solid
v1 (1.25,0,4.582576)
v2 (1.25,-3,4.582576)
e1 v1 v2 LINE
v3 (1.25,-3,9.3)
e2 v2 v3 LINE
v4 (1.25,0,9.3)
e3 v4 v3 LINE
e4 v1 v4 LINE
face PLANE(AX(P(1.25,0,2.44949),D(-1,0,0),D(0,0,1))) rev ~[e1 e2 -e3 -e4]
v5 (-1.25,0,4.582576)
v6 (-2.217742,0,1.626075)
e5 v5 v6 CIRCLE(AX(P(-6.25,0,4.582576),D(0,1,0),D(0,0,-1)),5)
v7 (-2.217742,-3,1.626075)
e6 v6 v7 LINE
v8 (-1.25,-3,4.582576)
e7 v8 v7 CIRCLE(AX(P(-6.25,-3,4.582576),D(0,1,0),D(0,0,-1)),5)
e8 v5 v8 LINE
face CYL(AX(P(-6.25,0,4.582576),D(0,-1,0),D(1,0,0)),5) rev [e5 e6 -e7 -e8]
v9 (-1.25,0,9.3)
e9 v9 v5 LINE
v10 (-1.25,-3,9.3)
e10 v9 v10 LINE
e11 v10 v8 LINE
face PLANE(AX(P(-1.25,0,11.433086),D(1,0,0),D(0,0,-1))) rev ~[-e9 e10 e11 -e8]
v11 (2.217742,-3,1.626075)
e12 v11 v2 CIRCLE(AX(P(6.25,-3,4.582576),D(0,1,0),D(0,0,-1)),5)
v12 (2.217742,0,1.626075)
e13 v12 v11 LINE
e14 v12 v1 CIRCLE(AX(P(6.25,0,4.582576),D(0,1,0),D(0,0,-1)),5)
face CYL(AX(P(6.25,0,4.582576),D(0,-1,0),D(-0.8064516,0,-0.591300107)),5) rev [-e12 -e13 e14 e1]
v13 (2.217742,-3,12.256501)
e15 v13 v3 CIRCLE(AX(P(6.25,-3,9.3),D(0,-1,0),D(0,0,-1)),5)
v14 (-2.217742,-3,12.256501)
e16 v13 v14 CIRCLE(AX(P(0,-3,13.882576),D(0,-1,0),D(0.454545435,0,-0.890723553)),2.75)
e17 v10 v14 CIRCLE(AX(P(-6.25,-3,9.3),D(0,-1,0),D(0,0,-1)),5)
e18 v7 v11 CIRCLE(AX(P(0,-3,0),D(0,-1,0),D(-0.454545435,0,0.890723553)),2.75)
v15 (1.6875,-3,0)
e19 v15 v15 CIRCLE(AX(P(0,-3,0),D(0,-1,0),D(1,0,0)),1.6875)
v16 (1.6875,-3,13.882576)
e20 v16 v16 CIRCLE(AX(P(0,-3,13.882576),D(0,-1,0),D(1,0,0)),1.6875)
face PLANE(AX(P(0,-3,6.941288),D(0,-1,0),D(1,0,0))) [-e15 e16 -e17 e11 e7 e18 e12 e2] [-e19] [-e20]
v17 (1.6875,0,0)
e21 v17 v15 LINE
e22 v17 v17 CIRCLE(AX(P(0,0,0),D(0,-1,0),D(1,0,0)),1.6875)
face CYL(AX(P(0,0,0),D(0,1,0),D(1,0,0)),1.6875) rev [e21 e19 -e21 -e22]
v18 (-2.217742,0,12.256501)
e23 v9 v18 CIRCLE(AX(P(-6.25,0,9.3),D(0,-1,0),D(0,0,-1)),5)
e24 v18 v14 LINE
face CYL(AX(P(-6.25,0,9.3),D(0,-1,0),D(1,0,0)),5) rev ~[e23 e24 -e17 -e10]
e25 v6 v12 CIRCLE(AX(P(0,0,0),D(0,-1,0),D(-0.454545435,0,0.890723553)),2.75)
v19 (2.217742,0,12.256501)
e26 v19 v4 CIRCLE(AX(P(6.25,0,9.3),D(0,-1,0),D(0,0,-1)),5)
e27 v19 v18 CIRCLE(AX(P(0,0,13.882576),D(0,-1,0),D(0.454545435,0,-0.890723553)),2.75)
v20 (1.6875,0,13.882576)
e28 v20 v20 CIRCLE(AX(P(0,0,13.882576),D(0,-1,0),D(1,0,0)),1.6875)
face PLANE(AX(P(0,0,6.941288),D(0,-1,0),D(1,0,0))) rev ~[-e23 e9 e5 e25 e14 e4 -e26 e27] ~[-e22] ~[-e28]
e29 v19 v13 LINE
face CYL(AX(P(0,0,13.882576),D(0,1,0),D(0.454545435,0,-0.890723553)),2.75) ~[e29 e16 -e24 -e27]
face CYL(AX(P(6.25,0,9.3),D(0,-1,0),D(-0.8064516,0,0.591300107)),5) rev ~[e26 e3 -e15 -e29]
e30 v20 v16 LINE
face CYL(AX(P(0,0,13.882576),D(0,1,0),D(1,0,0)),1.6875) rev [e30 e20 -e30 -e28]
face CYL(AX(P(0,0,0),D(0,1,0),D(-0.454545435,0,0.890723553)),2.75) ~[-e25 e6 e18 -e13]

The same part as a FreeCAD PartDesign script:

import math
import FreeCAD as App
import Part
import Sketcher

V = App.Vector


def edges_at(feature, points):
    """Names of the edges that pass closest to the given points."""
    edges = feature.Shape.Edges
    near = lambda p: min(range(len(edges)), key=lambda i: edges[i].distToShape(Part.Vertex(*p))[0])
    return sorted({f"Edge{near(p) + 1}" for p in points})

doc = App.newDocument("Part")
params = doc.addObject("Spreadsheet::Sheet", "Params")
for row, (alias, value) in enumerate([
    ("sketch1_radius", "2.75 mm"),
    ("pad1_length", "3 mm"),
    ("fillet_radius", "5 mm"),
], start=1):
    params.set(f"A{row}", alias)
    params.set(f"B{row}", "=" + value)
    params.setAlias(f"B{row}", alias)

body = doc.addObject("PartDesign::Body", "Body")

# Sketch on XZ plane
sketch1 = body.newObject("Sketcher::SketchObject", "Sketch")
sketch1.AttachmentSupport = (doc.getObject("XZ_Plane"), [""])
sketch1.MapMode = "FlatFace"
sketch1.addGeometry(Part.LineSegment(V(-1.2, 11.4, 0), V(-1.2, 2.4, 0)), False)
sketch1.addGeometry(Part.ArcOfCircle(Part.Circle(V(0, 0, 0), V(0, 0, 1), 2.8), math.radians(117), math.radians(423)), False)
sketch1.addGeometry(Part.LineSegment(V(1.2, 2.4, 0), V(1.2, 11.4, 0)), False)
sketch1.addGeometry(Part.ArcOfCircle(Part.Circle(V(0, 13.9, 0), V(0, 0, 1), 2.8), math.radians(-63), math.radians(243)), False)
sketch1.addGeometry(Part.Circle(V(0, 0, 0), V(0, 0, 1), 1.7), False)
sketch1.addGeometry(Part.Circle(V(0, 13.9, 0), V(0, 0, 1), 1.7), False)
sketch1.addConstraint(Sketcher.Constraint("Coincident", 0, 2, 1, 1))
sketch1.addConstraint(Sketcher.Constraint("Coincident", 1, 2, 2, 1))
sketch1.addConstraint(Sketcher.Constraint("Coincident", 2, 2, 3, 1))
sketch1.addConstraint(Sketcher.Constraint("Coincident", 3, 2, 0, 1))
sketch1.addConstraint(Sketcher.Constraint("Vertical", 0))
sketch1.addConstraint(Sketcher.Constraint("Vertical", 2))
sketch1.addConstraint(Sketcher.Constraint("Coincident", 1, 3, -1, 1))
sketch1.addConstraint(Sketcher.Constraint("Coincident", 4, 3, -1, 1))
sketch1.addConstraint(Sketcher.Constraint("Coincident", 5, 3, 3, 3))
sketch1.addConstraint(Sketcher.Constraint("Equal", 1, 3))
sketch1.addConstraint(Sketcher.Constraint("Equal", 4, 5))
sketch1.addConstraint(Sketcher.Constraint("Symmetric", 2, 2, 3, 2, -2))
sketch1.addConstraint(Sketcher.Constraint("Radius", 1, 2.75))
sketch1.addConstraint(Sketcher.Constraint("Diameter", 4, 3.375))
sketch1.addConstraint(Sketcher.Constraint("DistanceX", 0, 2, 1, 2, 2.5))
sketch1.addConstraint(Sketcher.Constraint("DistanceY", 0, 2, 0, 1, 8.983596))
sketch1.setExpression("Constraints[12]", "Params.sketch1_radius")
pad1 = body.newObject("PartDesign::Pad", "Pad")
pad1.Profile = sketch1
pad1.setExpression("Length", "Params.pad1_length")
doc.recompute()

fillet = body.newObject("PartDesign::Fillet", "Fillet")
fillet.Base = (pad1, edges_at(pad1, [
    (1.25, -1.5, 2.449),
    (-1.25, -1.5, 2.449),
    (-1.25, -1.5, 11.433),
    (1.25, -1.5, 11.433),
]))
fillet.setExpression("Radius", "Params.fillet_radius")

doc.recompute()
